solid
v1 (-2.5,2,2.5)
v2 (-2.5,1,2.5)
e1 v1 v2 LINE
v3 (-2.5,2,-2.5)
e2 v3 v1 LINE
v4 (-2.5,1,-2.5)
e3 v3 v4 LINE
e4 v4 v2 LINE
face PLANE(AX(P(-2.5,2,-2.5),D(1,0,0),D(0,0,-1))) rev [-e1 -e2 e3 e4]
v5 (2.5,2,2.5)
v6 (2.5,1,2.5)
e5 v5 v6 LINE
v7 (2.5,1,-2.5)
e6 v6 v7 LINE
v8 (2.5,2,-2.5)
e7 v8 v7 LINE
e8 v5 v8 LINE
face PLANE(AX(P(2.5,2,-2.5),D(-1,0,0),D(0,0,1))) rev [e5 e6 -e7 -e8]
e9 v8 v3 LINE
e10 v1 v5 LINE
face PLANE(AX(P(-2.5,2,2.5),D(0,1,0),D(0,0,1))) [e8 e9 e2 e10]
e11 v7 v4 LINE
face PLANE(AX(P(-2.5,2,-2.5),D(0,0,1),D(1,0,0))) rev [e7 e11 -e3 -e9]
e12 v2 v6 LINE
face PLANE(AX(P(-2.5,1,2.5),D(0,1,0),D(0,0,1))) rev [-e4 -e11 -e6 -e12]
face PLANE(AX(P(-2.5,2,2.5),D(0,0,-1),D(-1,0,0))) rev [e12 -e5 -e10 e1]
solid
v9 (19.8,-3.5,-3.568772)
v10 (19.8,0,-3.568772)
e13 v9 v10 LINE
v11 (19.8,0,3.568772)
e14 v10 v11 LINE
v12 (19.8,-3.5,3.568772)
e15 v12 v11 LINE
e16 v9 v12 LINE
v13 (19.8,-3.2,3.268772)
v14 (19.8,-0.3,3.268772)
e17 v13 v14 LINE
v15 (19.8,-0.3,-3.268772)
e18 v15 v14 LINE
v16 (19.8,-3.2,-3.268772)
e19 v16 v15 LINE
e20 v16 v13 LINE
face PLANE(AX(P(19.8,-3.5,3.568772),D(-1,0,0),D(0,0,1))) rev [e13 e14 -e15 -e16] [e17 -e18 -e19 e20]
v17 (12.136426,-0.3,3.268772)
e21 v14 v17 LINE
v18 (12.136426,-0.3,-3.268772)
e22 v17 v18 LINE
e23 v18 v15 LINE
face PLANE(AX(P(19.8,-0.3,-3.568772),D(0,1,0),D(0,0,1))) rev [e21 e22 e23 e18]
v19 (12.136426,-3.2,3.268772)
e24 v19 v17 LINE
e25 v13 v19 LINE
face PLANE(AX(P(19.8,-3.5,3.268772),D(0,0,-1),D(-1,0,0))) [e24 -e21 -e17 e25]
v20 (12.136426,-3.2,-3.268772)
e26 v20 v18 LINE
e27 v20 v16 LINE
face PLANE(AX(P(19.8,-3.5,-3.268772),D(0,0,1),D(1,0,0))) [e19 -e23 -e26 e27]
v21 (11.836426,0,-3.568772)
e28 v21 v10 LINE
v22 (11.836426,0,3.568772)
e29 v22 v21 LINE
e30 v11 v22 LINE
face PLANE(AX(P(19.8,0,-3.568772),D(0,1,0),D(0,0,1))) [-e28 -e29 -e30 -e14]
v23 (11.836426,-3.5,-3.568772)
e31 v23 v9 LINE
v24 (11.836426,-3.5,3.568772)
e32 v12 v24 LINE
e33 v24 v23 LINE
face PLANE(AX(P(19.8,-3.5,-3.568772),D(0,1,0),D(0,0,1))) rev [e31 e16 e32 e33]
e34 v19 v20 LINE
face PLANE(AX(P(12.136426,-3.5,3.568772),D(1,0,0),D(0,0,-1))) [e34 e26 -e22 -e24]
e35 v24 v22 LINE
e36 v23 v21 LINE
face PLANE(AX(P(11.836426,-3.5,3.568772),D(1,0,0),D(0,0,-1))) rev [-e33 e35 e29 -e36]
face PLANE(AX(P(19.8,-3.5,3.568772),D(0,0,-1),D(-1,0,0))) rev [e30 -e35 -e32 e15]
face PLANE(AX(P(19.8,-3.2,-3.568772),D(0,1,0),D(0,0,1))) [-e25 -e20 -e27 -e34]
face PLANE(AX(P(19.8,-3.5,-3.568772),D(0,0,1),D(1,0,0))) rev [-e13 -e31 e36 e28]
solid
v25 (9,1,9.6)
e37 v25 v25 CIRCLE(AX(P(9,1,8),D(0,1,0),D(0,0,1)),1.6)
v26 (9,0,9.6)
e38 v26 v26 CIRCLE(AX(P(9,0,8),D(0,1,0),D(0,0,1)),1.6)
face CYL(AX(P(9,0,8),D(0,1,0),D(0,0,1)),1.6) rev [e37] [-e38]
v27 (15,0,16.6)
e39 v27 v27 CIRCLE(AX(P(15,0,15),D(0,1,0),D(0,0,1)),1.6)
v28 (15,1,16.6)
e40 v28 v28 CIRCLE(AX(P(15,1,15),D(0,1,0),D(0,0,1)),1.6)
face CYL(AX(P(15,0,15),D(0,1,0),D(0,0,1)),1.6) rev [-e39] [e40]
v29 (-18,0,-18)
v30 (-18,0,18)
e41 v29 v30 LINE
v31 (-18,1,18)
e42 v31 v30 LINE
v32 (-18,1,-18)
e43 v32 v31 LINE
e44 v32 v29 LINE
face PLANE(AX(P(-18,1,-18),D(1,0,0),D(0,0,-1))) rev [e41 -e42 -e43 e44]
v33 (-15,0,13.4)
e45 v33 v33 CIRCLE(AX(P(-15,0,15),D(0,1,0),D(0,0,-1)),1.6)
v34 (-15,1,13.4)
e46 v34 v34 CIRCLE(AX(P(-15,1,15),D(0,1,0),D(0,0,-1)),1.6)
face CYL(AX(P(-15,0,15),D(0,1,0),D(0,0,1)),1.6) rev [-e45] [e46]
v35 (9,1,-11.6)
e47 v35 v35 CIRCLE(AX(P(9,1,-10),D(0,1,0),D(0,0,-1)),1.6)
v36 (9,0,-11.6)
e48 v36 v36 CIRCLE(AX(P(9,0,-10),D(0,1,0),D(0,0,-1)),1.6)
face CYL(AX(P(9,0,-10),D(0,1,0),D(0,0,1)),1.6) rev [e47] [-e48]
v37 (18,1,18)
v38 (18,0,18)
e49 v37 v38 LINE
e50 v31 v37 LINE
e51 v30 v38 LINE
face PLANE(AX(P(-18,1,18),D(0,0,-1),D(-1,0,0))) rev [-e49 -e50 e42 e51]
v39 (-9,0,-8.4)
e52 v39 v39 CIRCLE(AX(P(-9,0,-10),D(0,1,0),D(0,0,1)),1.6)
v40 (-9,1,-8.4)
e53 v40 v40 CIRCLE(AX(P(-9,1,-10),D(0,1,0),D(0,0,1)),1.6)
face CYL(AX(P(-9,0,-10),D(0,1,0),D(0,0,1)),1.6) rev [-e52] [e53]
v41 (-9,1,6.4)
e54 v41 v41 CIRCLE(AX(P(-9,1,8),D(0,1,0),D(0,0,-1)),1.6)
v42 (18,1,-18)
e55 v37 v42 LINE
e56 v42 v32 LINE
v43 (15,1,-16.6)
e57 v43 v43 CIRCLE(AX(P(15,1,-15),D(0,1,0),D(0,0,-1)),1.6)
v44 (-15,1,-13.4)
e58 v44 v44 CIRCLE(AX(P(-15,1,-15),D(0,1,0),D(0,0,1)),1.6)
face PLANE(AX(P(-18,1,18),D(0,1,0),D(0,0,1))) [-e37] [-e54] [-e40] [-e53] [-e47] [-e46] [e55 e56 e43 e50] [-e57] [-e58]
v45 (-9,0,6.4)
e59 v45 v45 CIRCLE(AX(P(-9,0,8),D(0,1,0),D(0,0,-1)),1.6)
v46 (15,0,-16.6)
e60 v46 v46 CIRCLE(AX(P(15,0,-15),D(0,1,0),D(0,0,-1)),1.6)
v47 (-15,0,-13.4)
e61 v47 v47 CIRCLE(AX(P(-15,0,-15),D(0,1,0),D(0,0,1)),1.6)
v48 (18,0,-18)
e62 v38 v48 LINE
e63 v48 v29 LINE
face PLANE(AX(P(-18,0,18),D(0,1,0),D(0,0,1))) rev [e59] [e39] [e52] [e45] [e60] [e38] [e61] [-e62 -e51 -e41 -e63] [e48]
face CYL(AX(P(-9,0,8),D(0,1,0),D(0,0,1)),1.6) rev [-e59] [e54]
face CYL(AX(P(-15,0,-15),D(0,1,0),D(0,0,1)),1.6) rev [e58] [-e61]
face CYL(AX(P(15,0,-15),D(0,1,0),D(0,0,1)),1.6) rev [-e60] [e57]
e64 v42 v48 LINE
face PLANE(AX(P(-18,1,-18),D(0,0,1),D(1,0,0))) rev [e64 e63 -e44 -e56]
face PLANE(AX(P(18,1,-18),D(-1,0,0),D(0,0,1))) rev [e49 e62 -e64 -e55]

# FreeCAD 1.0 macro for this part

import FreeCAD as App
import Part
import Sketcher

V = App.Vector


def faces_at(feature, points):
    """Names of the faces that lie closest to the given points."""
    faces = feature.Shape.Faces
    near = lambda p: min(range(len(faces)), key=lambda i: faces[i].distToShape(Part.Vertex(*p))[0])
    return sorted({f"Face{near(p) + 1}" for p in points})

doc = App.newDocument("Part")
body = doc.addObject("PartDesign::Body", "Body")

sketch1 = body.newObject("Sketcher::SketchObject", "Sketch")
sketch1.AttachmentSupport = (doc.getObject("XZ_Plane"), [""])
sketch1.MapMode = "FlatFace"
sketch1.addGeometry([
    Part.LineSegment(V(-18, -18, 0), V(-18, 18, 0)),
    Part.LineSegment(V(-18, 18, 0), V(18, 18, 0)),
    Part.LineSegment(V(18, 18, 0), V(18, -18, 0)),
    Part.LineSegment(V(18, -18, 0), V(-18, -18, 0)),
], False)
sketch1.addConstraint([
    Sketcher.Constraint("Coincident", 0, 2, 1, 1),
    Sketcher.Constraint("Coincident", 1, 2, 2, 1),
    Sketcher.Constraint("Coincident", 2, 2, 3, 1),
    Sketcher.Constraint("Coincident", 3, 2, 0, 1),
    Sketcher.Constraint("Vertical", 0),
    Sketcher.Constraint("Horizontal", 1),
    Sketcher.Constraint("Vertical", 2),
    Sketcher.Constraint("Horizontal", 3),
    Sketcher.Constraint("Symmetric", 0, 2, 2, 2, -1, 1),
    Sketcher.Constraint("Equal", 3, 0),
    Sketcher.Constraint("DistanceX", 1, 1, 1, 2, 36.0),
])
pad1 = body.newObject("PartDesign::Pad", "Pad")
pad1.Profile = sketch1
pad1.Length = 1
pad1.Reversed = True

sketch2 = body.newObject("Sketcher::SketchObject", "Sketch001")
sketch2.AttachmentSupport = (doc.getObject("XZ_Plane"), [""])
sketch2.MapMode = "FlatFace"
sketch2.AttachmentOffset = App.Placement(V(0, 0, -1), App.Rotation())
sketch2.addGeometry([
    Part.Circle(V(-15, -15, 0), V(0, 0, 1), 1.6),
    Part.Circle(V(15, -15, 0), V(0, 0, 1), 1.6),
    Part.Circle(V(15, 15, 0), V(0, 0, 1), 1.6),
    Part.Circle(V(-15, 15, 0), V(0, 0, 1), 1.6),
    Part.Circle(V(-9, -10, 0), V(0, 0, 1), 1.6),
    Part.Circle(V(9, -10, 0), V(0, 0, 1), 1.6),
    Part.Circle(V(9, 8, 0), V(0, 0, 1), 1.6),
    Part.Circle(V(-9, 8, 0), V(0, 0, 1), 1.6),
], False)
sketch2.addConstraint([
    Sketcher.Constraint("Equal", 0, 1),
    Sketcher.Constraint("Equal", 1, 2),
    Sketcher.Constraint("Equal", 2, 3),
    Sketcher.Constraint("Equal", 3, 4),
    Sketcher.Constraint("Equal", 4, 5),
    Sketcher.Constraint("Equal", 5, 6),
    Sketcher.Constraint("Equal", 6, 7),
    Sketcher.Constraint("Symmetric", 0, 3, 2, 3, -1, 1),
    Sketcher.Constraint("Symmetric", 1, 3, 3, 3, -1, 1),
    Sketcher.Constraint("Symmetric", 0, 3, 1, 3, -2),
    Sketcher.Constraint("Symmetric", 4, 3, 5, 3, -2),
    Sketcher.Constraint("Symmetric", 6, 3, 7, 3, -2),
    Sketcher.Constraint("Vertical", 5, 3, 6, 3),
    Sketcher.Constraint("Diameter", 0, 3.2),
    Sketcher.Constraint("DistanceX", 0, 3, -1, 1, 15.0),
    Sketcher.Constraint("DistanceY", 0, 3, -1, 1, 15.0),
    Sketcher.Constraint("DistanceX", 4, 3, -1, 1, 9.0),
    Sketcher.Constraint("DistanceY", 4, 3, -1, 1, 10.0),
    Sketcher.Constraint("DistanceY", -1, 1, 6, 3, 8.0),
])
pocket1 = body.newObject("PartDesign::Pocket", "Pocket")
pocket1.Profile = sketch2
pocket1.Type = "ThroughAll"
pocket1.Reversed = True
body2 = doc.addObject("PartDesign::Body", "Body001")

sketch3 = body2.newObject("Sketcher::SketchObject", "Sketch002")
sketch3.AttachmentSupport = (doc.getObject("XZ_Plane001"), [""])
sketch3.MapMode = "FlatFace"
sketch3.AttachmentOffset = App.Placement(V(0, 0, -1), App.Rotation())
sketch3.addGeometry([
    Part.LineSegment(V(-2, -2, 0), V(-2, 2, 0)),
    Part.LineSegment(V(-2, 2, 0), V(2, 2, 0)),
    Part.LineSegment(V(2, 2, 0), V(2, -2, 0)),
    Part.LineSegment(V(2, -2, 0), V(-2, -2, 0)),
], False)
sketch3.addConstraint([
    Sketcher.Constraint("Coincident", 0, 2, 1, 1),
    Sketcher.Constraint("Coincident", 1, 2, 2, 1),
    Sketcher.Constraint("Coincident", 2, 2, 3, 1),
    Sketcher.Constraint("Coincident", 3, 2, 0, 1),
    Sketcher.Constraint("Vertical", 0),
    Sketcher.Constraint("Horizontal", 1),
    Sketcher.Constraint("Vertical", 2),
    Sketcher.Constraint("Horizontal", 3),
    Sketcher.Constraint("Symmetric", 0, 2, 2, 2, -1, 1),
    Sketcher.Constraint("Equal", 3, 0),
    Sketcher.Constraint("DistanceX", 1, 1, 1, 2, 5.0),
])
pad2 = body2.newObject("PartDesign::Pad", "Pad001")
pad2.Profile = sketch3
pad2.Length = 1
pad2.Reversed = True
body3 = doc.addObject("PartDesign::Body", "Body002")

sketch4 = body3.newObject("Sketcher::SketchObject", "Sketch003")
sketch4.AttachmentSupport = (doc.getObject("XZ_Plane002"), [""])
sketch4.MapMode = "FlatFace"
sketch4.addGeometry([
    Part.LineSegment(V(12, 4, 0), V(12, -4, 0)),
    Part.LineSegment(V(12, -4, 0), V(20, -4, 0)),
    Part.LineSegment(V(20, -4, 0), V(20, 4, 0)),
    Part.LineSegment(V(20, 4, 0), V(12, 4, 0)),
], False)
sketch4.addConstraint([
    Sketcher.Constraint("Coincident", 0, 2, 1, 1),
    Sketcher.Constraint("Coincident", 1, 2, 2, 1),
    Sketcher.Constraint("Coincident", 2, 2, 3, 1),
    Sketcher.Constraint("Coincident", 3, 2, 0, 1),
    Sketcher.Constraint("Vertical", 0),
    Sketcher.Constraint("Horizontal", 1),
    Sketcher.Constraint("Vertical", 2),
    Sketcher.Constraint("Horizontal", 3),
    Sketcher.Constraint("DistanceX", -1, 1, 1, 2, 19.8),
    Sketcher.Constraint("DistanceX", 1, 1, 1, 2, 7.963574),
    Sketcher.Constraint("DistanceY", 0, 2, 0, 1, 7.137543),
    Sketcher.Constraint("DistanceY", 0, 2, -1, 1, 3.568772),
])
pad3 = body3.newObject("PartDesign::Pad", "Pad002")
pad3.Profile = sketch4
pad3.Length = 3.5
doc.recompute()

thickness = body3.newObject("PartDesign::Thickness", "Thickness")
thickness.Base = (pad3, faces_at(pad3, [(19.8, -1.75, 0)]))
thickness.Value = 0.3
thickness.Reversed = True
thickness.Join = "Intersection"

doc.recompute()
